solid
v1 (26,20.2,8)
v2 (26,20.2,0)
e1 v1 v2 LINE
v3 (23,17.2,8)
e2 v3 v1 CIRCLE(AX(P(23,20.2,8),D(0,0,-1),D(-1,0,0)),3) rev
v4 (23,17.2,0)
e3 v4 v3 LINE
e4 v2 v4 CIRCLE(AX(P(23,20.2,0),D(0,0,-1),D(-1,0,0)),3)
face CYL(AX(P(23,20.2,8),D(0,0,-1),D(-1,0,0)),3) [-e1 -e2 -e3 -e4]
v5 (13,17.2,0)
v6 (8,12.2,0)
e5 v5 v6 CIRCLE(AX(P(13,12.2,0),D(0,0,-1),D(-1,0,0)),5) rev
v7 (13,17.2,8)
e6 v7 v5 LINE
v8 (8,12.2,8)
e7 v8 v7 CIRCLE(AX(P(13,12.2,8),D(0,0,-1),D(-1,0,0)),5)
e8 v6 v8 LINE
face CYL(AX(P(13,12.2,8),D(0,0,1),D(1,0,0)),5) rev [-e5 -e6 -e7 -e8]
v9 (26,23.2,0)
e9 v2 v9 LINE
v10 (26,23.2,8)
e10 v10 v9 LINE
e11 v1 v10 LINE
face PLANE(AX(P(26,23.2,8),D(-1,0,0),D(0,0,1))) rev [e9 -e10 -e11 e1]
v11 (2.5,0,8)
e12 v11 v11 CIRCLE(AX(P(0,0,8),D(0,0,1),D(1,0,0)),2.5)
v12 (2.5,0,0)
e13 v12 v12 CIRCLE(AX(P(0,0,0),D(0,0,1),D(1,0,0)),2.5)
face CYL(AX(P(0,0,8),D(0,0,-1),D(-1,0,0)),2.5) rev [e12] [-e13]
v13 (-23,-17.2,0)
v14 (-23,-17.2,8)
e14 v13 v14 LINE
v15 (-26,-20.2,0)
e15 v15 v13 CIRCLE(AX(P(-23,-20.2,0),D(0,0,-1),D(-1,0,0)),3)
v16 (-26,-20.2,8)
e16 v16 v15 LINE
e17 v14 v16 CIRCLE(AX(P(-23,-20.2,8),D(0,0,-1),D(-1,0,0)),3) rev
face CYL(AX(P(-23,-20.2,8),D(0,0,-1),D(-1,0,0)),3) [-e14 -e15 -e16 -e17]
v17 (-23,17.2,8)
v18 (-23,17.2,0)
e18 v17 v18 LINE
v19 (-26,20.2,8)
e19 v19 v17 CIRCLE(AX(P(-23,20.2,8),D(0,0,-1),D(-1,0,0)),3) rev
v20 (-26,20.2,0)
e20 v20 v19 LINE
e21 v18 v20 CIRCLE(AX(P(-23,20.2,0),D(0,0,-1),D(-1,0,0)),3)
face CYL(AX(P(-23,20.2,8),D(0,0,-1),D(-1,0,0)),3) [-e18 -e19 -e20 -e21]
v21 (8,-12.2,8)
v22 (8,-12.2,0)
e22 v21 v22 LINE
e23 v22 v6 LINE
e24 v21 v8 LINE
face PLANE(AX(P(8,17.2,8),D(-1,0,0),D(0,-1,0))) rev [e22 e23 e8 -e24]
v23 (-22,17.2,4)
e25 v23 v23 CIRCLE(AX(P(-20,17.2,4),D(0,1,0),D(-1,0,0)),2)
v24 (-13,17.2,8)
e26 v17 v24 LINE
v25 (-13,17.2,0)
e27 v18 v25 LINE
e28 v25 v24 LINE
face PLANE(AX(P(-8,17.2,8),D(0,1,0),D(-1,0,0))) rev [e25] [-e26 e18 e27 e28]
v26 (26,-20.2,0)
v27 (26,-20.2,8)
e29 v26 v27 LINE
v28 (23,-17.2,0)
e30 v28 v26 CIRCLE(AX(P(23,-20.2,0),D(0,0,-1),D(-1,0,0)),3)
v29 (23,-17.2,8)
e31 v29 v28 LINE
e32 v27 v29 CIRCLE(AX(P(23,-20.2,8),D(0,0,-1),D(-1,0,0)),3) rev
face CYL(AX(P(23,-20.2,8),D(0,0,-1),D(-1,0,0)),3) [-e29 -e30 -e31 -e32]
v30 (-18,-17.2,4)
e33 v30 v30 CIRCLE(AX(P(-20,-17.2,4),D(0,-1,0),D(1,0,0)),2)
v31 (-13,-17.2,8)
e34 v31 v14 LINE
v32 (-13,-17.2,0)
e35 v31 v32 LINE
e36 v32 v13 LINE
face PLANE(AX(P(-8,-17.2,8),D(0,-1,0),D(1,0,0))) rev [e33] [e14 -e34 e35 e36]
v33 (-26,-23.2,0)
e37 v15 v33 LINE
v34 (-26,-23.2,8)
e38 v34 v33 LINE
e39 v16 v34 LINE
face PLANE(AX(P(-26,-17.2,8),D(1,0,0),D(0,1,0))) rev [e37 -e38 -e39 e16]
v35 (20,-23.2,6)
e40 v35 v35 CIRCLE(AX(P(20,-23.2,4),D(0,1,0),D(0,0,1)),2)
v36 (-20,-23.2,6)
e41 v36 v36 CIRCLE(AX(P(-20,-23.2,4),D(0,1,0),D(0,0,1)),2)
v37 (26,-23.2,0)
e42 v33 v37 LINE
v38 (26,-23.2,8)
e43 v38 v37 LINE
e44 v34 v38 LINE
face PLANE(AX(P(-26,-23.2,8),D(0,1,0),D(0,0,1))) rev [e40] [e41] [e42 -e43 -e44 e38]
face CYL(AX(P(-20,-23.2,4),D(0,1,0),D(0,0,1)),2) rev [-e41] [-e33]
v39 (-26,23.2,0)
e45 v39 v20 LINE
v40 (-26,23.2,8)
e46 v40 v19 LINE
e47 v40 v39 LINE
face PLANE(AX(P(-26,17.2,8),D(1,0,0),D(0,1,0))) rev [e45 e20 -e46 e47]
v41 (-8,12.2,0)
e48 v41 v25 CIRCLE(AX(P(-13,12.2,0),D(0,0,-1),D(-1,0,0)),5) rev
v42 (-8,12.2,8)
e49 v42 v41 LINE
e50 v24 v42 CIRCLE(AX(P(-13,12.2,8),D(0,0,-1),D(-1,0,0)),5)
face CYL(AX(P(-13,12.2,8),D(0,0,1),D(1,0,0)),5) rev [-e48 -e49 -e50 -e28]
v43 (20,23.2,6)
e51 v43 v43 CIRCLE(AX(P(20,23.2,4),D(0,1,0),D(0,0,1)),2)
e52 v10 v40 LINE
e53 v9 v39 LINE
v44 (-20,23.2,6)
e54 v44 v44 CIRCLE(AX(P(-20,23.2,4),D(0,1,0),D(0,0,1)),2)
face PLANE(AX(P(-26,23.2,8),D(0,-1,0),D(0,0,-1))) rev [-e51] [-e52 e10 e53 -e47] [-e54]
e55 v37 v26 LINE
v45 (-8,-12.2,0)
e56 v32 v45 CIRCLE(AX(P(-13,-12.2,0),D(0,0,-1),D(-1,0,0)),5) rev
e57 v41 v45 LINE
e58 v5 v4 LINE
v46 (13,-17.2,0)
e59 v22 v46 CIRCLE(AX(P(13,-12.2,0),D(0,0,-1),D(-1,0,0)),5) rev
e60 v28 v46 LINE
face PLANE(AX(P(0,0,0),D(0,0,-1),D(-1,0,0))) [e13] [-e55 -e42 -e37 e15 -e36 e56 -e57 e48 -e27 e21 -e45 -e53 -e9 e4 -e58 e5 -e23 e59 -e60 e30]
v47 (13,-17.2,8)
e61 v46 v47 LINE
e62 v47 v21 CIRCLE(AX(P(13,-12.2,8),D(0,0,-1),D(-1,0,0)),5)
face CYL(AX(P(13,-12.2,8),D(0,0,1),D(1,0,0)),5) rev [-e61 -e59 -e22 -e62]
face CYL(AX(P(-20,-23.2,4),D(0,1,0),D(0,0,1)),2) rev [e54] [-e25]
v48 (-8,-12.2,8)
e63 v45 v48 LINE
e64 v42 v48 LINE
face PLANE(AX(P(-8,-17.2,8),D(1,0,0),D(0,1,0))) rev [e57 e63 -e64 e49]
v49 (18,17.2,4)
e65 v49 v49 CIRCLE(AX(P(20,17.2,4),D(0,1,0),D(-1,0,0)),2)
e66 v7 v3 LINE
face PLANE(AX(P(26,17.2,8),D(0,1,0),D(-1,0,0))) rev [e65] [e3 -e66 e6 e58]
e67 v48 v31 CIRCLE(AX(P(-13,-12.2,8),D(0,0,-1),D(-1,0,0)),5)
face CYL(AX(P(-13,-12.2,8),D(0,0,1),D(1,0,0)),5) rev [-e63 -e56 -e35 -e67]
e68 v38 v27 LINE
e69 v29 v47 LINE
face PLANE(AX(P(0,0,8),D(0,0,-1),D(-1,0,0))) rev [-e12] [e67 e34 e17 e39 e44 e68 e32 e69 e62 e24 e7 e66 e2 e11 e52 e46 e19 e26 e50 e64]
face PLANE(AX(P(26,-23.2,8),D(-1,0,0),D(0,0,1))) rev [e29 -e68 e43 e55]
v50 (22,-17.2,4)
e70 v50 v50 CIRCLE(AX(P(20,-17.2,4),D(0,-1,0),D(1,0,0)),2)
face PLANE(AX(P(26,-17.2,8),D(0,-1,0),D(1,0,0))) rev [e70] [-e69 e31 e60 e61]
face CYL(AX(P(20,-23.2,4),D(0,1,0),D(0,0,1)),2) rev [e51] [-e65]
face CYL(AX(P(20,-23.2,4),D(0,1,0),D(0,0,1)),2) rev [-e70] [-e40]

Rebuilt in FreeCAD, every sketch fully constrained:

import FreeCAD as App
import Part
import Sketcher
from FreeCAD import Vector


def edges_at(feature, points):
    """Names of the edges that pass closest to the given points."""
    edges = feature.Shape.Edges
    near = lambda p: min(range(len(edges)), key=lambda i: edges[i].distToShape(Part.Vertex(*p))[0])
    return sorted({f"Edge{near(p) + 1}" for p in points})

doc = App.newDocument("Part")
body = doc.addObject("PartDesign::Body", "Body")

# Sketch on XY plane
sketch1 = body.newObject("Sketcher::SketchObject", "Sketch")
sketch1.AttachmentSupport = (doc.getObject("XY_Plane"), [""])
sketch1.MapMode = "FlatFace"
sketch1.addGeometry([
    Part.LineSegment(Vector(-8, 17.2, 0), Vector(-8, -17.2, 0)),  # 0
    Part.LineSegment(Vector(-8, -17.2, 0), Vector(-26, -17.2, 0)),  # 1
    Part.LineSegment(Vector(-26, -17.2, 0), Vector(-26, -23.2, 0)),  # 2
    Part.LineSegment(Vector(-26, -23.2, 0), Vector(26, -23.2, 0)),  # 3
    Part.LineSegment(Vector(26, -23.2, 0), Vector(26, -17.2, 0)),  # 4
    Part.LineSegment(Vector(26, -17.2, 0), Vector(8, -17.2, 0)),  # 5
    Part.LineSegment(Vector(8, -17.2, 0), Vector(8, 17.2, 0)),  # 6
    Part.LineSegment(Vector(8, 17.2, 0), Vector(26, 17.2, 0)),  # 7
    Part.LineSegment(Vector(26, 17.2, 0), Vector(26, 23.2, 0)),  # 8
    Part.LineSegment(Vector(26, 23.2, 0), Vector(-26, 23.2, 0)),  # 9
    Part.LineSegment(Vector(-26, 23.2, 0), Vector(-26, 17.2, 0)),  # 10
    Part.LineSegment(Vector(-26, 17.2, 0), Vector(-8, 17.2, 0)),  # 11
    Part.Circle(Vector(0, 0, 0), Vector(0, 0, 1), 2.5),  # 12
], False)
sketch1.addConstraint([
    Sketcher.Constraint("Coincident", 0, 2, 1, 1),
    Sketcher.Constraint("Coincident", 1, 2, 2, 1),
    Sketcher.Constraint("Coincident", 2, 2, 3, 1),
    Sketcher.Constraint("Coincident", 3, 2, 4, 1),
    Sketcher.Constraint("Coincident", 4, 2, 5, 1),
    Sketcher.Constraint("Coincident", 5, 2, 6, 1),
    Sketcher.Constraint("Coincident", 6, 2, 7, 1),
    Sketcher.Constraint("Coincident", 7, 2, 8, 1),
    Sketcher.Constraint("Coincident", 8, 2, 9, 1),
    Sketcher.Constraint("Coincident", 9, 2, 10, 1),
    Sketcher.Constraint("Coincident", 10, 2, 11, 1),
    Sketcher.Constraint("Coincident", 11, 2, 0, 1),
    Sketcher.Constraint("Vertical", 0),
    Sketcher.Constraint("Horizontal", 1),
    Sketcher.Constraint("Vertical", 2),
    Sketcher.Constraint("Horizontal", 3),
    Sketcher.Constraint("Vertical", 4),
    Sketcher.Constraint("Horizontal", 5),
    Sketcher.Constraint("Vertical", 6),
    Sketcher.Constraint("Horizontal", 7),
    Sketcher.Constraint("Vertical", 8),
    Sketcher.Constraint("Horizontal", 9),
    Sketcher.Constraint("Vertical", 10),
    Sketcher.Constraint("Horizontal", 11),
    Sketcher.Constraint("Coincident", 12, 3, -1, 1),
    Sketcher.Constraint("Symmetric", 0, 2, 6, 2, -1, 1),
    Sketcher.Constraint("Symmetric", 2, 2, 8, 2, -1, 1),
    Sketcher.Constraint("Symmetric", 4, 2, 10, 2, -1, 1),
    Sketcher.Constraint("Symmetric", 1, 2, 4, 2, -2),
    Sketcher.Constraint("Diameter", 12, 5.0),
    Sketcher.Constraint("DistanceX", 1, 2, 1, 1, 18.0),
    Sketcher.Constraint("DistanceX", 3, 1, 3, 2, 52.0),
    Sketcher.Constraint("DistanceY", 2, 2, 2, 1, 6.0),
    Sketcher.Constraint("DistanceY", 0, 2, 0, 1, 34.4),
])
pad1 = body.newObject("PartDesign::Pad", "Pad")
pad1.Profile = sketch1
pad1.Length = 8

# Sketch on XZ plane
sketch2 = body.newObject("Sketcher::SketchObject", "Sketch001")
sketch2.AttachmentSupport = (doc.getObject("XZ_Plane"), [""])
sketch2.MapMode = "FlatFace"
sketch2.AttachmentOffset = App.Placement(Vector(0, 0, -23.2), App.Rotation())
sketch2.addGeometry([
    Part.Circle(Vector(-20, 4, 0), Vector(0, 0, 1), 2),
    Part.Circle(Vector(20, 4, 0), Vector(0, 0, 1), 2),
], False)
sketch2.addConstraint([
    Sketcher.Constraint("Equal", 0, 1),
    Sketcher.Constraint("Symmetric", 0, 3, 1, 3, -2),
    Sketcher.Constraint("Diameter", 0, 4.0),
    Sketcher.Constraint("DistanceX", 0, 3, -1, 1, 20.0),
    Sketcher.Constraint("DistanceY", -1, 1, 0, 3, 4.0),
])
pocket1 = body.newObject("PartDesign::Pocket", "Pocket")
pocket1.Profile = sketch2
pocket1.Type = "ThroughAll"
pocket1.Reversed = True
doc.recompute()

fillet = body.newObject("PartDesign::Fillet", "Fillet")
fillet.Base = (pocket1, edges_at(pocket1, [
    (-26, 17.2, 4),
    (26, 17.2, 4),
    (26, -17.2, 4),
    (-26, -17.2, 4),
]))
fillet.Radius = 3
doc.recompute()

fillet2 = body.newObject("PartDesign::Fillet", "Fillet001")
fillet2.Base = (fillet, edges_at(fillet, [
    (8, 17.2, 4),
    (8, -17.2, 4),
    (-8, -17.2, 4),
    (-8, 17.2, 4),
]))
fillet2.Radius = 5

doc.recompute()
